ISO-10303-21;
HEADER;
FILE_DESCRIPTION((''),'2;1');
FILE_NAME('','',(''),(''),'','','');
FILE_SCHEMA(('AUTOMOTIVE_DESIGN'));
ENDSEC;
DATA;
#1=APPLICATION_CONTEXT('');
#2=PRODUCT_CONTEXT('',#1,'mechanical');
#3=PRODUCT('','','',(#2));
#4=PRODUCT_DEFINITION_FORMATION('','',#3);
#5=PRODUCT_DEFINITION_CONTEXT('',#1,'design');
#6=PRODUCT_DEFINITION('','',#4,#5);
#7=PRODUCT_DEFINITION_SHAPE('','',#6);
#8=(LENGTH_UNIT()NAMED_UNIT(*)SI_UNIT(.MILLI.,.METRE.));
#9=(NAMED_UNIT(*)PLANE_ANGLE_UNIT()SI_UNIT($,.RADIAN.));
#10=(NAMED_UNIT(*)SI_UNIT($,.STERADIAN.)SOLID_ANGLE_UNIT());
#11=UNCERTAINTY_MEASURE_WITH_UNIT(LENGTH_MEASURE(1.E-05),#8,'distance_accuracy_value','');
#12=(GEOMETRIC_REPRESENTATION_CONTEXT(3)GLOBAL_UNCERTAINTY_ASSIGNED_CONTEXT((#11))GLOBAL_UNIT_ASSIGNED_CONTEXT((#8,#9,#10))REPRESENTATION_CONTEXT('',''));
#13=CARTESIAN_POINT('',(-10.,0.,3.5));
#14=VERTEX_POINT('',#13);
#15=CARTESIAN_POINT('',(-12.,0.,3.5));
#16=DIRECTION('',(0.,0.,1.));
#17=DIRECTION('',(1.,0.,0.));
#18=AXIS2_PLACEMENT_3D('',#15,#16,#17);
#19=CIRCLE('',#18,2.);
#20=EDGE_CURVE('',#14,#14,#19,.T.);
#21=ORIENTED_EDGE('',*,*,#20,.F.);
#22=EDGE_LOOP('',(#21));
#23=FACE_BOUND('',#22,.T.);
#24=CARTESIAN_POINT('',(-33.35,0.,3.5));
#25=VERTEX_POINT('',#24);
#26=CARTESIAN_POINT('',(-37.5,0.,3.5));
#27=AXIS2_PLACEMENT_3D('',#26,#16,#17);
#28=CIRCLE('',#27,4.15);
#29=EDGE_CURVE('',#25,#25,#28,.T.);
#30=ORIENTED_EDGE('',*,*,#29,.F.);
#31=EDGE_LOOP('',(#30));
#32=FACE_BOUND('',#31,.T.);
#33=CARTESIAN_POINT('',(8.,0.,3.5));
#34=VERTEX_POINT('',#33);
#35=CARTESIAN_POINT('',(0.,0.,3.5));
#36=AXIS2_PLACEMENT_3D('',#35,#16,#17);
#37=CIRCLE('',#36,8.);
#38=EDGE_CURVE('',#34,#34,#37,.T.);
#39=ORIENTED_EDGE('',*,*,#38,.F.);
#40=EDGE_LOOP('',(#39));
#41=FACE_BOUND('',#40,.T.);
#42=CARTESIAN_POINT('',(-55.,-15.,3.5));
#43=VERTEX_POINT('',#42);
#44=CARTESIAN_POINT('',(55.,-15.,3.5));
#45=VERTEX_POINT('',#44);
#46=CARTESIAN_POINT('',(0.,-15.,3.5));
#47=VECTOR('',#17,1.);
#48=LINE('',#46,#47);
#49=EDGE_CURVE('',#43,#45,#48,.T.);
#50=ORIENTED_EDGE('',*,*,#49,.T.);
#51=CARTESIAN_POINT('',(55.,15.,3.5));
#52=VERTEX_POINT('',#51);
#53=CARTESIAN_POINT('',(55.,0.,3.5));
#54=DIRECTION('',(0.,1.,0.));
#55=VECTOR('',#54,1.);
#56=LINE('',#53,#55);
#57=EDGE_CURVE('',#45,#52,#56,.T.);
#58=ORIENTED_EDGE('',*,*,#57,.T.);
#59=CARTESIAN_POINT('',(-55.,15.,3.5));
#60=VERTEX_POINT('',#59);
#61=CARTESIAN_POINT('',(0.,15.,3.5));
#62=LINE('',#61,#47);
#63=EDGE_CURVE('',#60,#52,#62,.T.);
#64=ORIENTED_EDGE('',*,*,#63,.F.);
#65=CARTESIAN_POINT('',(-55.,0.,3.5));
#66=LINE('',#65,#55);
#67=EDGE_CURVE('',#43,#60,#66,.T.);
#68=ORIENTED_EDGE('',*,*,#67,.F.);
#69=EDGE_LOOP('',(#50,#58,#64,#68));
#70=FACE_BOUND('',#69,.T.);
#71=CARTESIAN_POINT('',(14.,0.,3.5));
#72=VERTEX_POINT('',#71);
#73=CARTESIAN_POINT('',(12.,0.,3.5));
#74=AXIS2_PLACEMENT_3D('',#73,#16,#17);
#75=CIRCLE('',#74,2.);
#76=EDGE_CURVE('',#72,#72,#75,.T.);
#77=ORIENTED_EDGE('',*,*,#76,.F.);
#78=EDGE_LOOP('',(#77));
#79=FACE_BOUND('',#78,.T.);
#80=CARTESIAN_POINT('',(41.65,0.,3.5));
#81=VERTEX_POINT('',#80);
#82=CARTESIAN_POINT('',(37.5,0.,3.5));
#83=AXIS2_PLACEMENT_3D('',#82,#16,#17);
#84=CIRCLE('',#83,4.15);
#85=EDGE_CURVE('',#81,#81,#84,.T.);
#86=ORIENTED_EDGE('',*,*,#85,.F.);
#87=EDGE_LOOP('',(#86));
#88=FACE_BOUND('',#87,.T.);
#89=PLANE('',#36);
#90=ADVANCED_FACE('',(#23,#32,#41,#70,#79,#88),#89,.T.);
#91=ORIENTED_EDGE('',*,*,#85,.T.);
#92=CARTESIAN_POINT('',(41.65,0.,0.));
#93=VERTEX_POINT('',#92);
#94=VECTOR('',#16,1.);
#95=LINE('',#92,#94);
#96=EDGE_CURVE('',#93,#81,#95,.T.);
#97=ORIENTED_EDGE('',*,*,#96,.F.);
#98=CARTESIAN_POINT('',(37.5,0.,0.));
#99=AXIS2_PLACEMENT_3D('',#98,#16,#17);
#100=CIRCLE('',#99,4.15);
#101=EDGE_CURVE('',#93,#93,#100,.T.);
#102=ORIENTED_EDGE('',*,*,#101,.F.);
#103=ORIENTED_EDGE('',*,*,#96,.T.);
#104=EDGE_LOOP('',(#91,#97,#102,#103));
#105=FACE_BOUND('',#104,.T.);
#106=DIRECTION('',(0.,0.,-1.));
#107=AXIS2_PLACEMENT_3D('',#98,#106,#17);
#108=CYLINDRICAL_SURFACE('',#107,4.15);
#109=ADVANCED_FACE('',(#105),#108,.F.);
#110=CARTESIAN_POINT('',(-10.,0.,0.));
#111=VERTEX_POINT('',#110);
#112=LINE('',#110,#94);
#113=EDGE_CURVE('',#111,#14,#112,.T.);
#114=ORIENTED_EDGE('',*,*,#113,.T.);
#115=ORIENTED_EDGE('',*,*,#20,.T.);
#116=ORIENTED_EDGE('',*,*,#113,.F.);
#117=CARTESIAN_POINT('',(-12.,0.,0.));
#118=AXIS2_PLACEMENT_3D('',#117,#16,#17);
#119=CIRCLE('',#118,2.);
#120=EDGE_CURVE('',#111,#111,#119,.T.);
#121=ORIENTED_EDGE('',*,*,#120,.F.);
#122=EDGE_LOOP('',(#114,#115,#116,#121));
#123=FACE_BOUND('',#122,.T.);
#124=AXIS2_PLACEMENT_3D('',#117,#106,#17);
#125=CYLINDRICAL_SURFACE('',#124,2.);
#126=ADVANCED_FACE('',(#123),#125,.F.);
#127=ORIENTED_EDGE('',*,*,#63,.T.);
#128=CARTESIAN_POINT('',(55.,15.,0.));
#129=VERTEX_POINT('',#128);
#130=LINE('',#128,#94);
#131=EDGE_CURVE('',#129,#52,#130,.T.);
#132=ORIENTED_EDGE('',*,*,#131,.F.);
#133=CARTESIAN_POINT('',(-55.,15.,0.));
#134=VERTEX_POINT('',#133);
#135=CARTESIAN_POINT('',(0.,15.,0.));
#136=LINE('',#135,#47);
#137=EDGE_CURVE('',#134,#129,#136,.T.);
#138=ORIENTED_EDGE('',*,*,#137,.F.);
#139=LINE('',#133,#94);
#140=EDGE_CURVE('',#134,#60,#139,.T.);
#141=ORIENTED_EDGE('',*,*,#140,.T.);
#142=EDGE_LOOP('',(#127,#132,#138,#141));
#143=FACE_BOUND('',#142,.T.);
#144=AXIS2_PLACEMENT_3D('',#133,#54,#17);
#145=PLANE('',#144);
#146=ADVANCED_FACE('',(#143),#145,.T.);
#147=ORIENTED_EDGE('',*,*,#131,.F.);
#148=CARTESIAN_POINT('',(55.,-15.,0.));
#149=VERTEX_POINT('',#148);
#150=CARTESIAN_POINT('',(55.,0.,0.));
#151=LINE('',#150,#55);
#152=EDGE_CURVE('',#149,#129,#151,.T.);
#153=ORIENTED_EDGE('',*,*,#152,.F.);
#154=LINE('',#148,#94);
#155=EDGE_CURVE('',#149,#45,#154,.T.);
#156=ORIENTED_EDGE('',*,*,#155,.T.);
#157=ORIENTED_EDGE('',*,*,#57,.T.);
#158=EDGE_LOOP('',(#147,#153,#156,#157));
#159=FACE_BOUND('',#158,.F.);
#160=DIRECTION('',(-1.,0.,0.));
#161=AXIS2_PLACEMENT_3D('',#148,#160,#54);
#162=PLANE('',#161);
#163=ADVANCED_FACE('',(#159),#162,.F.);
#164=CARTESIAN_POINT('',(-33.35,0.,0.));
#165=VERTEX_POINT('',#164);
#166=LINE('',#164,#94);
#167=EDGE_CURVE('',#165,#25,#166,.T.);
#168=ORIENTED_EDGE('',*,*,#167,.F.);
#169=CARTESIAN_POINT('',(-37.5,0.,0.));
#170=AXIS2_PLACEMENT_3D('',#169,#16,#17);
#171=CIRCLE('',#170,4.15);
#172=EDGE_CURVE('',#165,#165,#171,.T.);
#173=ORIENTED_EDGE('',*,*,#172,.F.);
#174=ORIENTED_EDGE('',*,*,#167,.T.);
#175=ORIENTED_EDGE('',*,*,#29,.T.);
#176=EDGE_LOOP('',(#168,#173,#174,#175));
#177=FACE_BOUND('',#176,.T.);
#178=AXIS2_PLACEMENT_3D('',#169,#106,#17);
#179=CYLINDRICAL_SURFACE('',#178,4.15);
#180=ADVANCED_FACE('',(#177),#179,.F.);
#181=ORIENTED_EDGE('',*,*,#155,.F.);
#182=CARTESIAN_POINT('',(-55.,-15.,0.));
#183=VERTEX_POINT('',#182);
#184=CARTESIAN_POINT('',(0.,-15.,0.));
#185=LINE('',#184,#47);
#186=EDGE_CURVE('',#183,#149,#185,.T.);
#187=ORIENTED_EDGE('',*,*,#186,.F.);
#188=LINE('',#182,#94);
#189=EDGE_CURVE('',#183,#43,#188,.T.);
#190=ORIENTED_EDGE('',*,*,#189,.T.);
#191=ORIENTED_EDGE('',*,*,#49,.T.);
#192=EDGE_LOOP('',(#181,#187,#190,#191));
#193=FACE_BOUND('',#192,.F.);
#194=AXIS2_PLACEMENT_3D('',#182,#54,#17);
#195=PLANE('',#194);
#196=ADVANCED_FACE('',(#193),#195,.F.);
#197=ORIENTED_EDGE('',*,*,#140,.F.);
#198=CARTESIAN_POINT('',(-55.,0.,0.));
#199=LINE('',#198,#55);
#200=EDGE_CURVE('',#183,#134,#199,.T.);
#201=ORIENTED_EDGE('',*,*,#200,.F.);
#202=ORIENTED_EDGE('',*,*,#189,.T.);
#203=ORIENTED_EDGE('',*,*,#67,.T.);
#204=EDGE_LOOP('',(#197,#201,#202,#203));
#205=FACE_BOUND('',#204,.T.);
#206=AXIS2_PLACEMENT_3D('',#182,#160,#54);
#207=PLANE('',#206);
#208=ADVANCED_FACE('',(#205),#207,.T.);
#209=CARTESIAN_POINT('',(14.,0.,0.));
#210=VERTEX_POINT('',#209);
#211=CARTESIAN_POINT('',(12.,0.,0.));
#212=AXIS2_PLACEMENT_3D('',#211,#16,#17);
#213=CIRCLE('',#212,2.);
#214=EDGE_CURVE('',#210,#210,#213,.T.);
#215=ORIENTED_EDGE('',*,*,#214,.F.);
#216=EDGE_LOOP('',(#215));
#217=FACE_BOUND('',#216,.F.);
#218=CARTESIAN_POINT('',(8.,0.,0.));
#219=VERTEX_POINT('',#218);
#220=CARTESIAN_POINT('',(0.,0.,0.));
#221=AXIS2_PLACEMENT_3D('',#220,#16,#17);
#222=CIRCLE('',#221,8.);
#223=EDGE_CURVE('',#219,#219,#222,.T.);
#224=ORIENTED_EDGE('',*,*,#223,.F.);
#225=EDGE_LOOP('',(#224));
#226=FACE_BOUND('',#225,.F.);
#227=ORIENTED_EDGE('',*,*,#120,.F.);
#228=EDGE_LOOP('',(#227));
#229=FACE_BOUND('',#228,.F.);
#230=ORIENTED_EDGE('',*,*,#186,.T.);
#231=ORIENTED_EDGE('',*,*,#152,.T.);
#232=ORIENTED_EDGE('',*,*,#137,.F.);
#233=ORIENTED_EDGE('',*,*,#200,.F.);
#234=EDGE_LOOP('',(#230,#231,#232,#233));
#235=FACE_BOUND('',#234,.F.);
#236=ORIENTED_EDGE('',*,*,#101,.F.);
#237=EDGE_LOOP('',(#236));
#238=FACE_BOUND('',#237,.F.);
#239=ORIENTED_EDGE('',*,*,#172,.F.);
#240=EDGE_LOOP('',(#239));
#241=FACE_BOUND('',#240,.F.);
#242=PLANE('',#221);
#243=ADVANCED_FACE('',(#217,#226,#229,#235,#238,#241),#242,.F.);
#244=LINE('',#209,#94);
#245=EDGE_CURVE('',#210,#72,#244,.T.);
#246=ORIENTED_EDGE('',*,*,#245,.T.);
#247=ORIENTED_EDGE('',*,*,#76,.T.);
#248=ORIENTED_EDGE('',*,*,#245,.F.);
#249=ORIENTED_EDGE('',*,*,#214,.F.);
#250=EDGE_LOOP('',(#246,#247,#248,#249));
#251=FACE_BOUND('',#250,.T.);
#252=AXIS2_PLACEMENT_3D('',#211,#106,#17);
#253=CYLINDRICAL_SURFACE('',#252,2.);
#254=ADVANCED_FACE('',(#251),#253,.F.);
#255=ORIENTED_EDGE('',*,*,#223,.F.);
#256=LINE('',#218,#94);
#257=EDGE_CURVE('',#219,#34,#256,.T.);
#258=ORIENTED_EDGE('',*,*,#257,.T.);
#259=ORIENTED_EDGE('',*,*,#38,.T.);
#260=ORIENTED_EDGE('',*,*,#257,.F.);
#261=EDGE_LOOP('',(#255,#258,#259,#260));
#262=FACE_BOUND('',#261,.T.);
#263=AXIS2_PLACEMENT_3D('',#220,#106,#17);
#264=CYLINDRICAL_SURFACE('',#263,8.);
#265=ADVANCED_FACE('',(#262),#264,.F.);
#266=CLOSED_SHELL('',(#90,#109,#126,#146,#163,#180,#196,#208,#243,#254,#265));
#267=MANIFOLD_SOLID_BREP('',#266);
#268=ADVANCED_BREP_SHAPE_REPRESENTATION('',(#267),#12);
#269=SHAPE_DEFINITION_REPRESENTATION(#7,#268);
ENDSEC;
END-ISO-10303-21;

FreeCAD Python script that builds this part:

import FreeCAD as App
import Part
import Sketcher

V = App.Vector

doc = App.newDocument("Part")
body = doc.addObject("PartDesign::Body", "Body")

# Sketch on XY plane
sketch1 = body.newObject("Sketcher::SketchObject", "Sketch")
sketch1.AttachmentSupport = (doc.getObject("XY_Plane"), [""])
sketch1.MapMode = "FlatFace"
sketch1.addGeometry(Part.LineSegment(V(-55, 15, 0), V(-55, -15, 0)), False)
sketch1.addGeometry(Part.LineSegment(V(-55, -15, 0), V(55, -15, 0)), False)
sketch1.addGeometry(Part.LineSegment(V(55, -15, 0), V(55, 15, 0)), False)
sketch1.addGeometry(Part.LineSegment(V(55, 15, 0), V(-55, 15, 0)), False)
sketch1.addGeometry(Part.Circle(V(-37.5, 0, 0), V(0, 0, 1), 4.2), False)
sketch1.addGeometry(Part.Circle(V(-12, 0, 0), V(0, 0, 1), 2), False)
sketch1.addGeometry(Part.Circle(V(0, 0, 0), V(0, 0, 1), 8), False)
sketch1.addGeometry(Part.Circle(V(12, 0, 0), V(0, 0, 1), 2), False)
sketch1.addGeometry(Part.Circle(V(37.5, 0, 0), V(0, 0, 1), 4.2), False)
sketch1.addConstraint(Sketcher.Constraint("Coincident", 0, 2, 1, 1))
sketch1.addConstraint(Sketcher.Constraint("Coincident", 1, 2, 2, 1))
sketch1.addConstraint(Sketcher.Constraint("Coincident", 2, 2, 3, 1))
sketch1.addConstraint(Sketcher.Constraint("Coincident", 3, 2, 0, 1))
sketch1.addConstraint(Sketcher.Constraint("Vertical", 0))
sketch1.addConstraint(Sketcher.Constraint("Horizontal", 1))
sketch1.addConstraint(Sketcher.Constraint("Vertical", 2))
sketch1.addConstraint(Sketcher.Constraint("Horizontal", 3))
sketch1.addConstraint(Sketcher.Constraint("Coincident", 6, 3, -1, 1))
sketch1.addConstraint(Sketcher.Constraint("Equal", 5, 7))
sketch1.addConstraint(Sketcher.Constraint("Equal", 4, 8))
sketch1.addConstraint(Sketcher.Constraint("Symmetric", 5, 3, 7, 3, -1, 1))
sketch1.addConstraint(Sketcher.Constraint("Symmetric", 4, 3, 8, 3, -1, 1))
sketch1.addConstraint(Sketcher.Constraint("Symmetric", 0, 2, 2, 2, -1, 1))
sketch1.addConstraint(Sketcher.Constraint("PointOnObject", 4, 3, -1))
sketch1.addConstraint(Sketcher.Constraint("PointOnObject", 5, 3, -1))
sketch1.addConstraint(Sketcher.Constraint("Diameter", 5, 4.0))
sketch1.addConstraint(Sketcher.Constraint("Diameter", 6, 16.0))
sketch1.addConstraint(Sketcher.Constraint("Diameter", 4, 8.3))
sketch1.addConstraint(Sketcher.Constraint("DistanceX", 1, 1, 1, 2, 110.0))
sketch1.addConstraint(Sketcher.Constraint("DistanceY", 0, 2, 0, 1, 30.0))
sketch1.addConstraint(Sketcher.Constraint("DistanceX", 5, 3, -1, 1, 12.0))
sketch1.addConstraint(Sketcher.Constraint("DistanceX", 4, 3, 8, 3, 75.0))
pad1 = body.newObject("PartDesign::Pad", "Pad")
pad1.Profile = sketch1
pad1.Length = 3.5

doc.recompute()
